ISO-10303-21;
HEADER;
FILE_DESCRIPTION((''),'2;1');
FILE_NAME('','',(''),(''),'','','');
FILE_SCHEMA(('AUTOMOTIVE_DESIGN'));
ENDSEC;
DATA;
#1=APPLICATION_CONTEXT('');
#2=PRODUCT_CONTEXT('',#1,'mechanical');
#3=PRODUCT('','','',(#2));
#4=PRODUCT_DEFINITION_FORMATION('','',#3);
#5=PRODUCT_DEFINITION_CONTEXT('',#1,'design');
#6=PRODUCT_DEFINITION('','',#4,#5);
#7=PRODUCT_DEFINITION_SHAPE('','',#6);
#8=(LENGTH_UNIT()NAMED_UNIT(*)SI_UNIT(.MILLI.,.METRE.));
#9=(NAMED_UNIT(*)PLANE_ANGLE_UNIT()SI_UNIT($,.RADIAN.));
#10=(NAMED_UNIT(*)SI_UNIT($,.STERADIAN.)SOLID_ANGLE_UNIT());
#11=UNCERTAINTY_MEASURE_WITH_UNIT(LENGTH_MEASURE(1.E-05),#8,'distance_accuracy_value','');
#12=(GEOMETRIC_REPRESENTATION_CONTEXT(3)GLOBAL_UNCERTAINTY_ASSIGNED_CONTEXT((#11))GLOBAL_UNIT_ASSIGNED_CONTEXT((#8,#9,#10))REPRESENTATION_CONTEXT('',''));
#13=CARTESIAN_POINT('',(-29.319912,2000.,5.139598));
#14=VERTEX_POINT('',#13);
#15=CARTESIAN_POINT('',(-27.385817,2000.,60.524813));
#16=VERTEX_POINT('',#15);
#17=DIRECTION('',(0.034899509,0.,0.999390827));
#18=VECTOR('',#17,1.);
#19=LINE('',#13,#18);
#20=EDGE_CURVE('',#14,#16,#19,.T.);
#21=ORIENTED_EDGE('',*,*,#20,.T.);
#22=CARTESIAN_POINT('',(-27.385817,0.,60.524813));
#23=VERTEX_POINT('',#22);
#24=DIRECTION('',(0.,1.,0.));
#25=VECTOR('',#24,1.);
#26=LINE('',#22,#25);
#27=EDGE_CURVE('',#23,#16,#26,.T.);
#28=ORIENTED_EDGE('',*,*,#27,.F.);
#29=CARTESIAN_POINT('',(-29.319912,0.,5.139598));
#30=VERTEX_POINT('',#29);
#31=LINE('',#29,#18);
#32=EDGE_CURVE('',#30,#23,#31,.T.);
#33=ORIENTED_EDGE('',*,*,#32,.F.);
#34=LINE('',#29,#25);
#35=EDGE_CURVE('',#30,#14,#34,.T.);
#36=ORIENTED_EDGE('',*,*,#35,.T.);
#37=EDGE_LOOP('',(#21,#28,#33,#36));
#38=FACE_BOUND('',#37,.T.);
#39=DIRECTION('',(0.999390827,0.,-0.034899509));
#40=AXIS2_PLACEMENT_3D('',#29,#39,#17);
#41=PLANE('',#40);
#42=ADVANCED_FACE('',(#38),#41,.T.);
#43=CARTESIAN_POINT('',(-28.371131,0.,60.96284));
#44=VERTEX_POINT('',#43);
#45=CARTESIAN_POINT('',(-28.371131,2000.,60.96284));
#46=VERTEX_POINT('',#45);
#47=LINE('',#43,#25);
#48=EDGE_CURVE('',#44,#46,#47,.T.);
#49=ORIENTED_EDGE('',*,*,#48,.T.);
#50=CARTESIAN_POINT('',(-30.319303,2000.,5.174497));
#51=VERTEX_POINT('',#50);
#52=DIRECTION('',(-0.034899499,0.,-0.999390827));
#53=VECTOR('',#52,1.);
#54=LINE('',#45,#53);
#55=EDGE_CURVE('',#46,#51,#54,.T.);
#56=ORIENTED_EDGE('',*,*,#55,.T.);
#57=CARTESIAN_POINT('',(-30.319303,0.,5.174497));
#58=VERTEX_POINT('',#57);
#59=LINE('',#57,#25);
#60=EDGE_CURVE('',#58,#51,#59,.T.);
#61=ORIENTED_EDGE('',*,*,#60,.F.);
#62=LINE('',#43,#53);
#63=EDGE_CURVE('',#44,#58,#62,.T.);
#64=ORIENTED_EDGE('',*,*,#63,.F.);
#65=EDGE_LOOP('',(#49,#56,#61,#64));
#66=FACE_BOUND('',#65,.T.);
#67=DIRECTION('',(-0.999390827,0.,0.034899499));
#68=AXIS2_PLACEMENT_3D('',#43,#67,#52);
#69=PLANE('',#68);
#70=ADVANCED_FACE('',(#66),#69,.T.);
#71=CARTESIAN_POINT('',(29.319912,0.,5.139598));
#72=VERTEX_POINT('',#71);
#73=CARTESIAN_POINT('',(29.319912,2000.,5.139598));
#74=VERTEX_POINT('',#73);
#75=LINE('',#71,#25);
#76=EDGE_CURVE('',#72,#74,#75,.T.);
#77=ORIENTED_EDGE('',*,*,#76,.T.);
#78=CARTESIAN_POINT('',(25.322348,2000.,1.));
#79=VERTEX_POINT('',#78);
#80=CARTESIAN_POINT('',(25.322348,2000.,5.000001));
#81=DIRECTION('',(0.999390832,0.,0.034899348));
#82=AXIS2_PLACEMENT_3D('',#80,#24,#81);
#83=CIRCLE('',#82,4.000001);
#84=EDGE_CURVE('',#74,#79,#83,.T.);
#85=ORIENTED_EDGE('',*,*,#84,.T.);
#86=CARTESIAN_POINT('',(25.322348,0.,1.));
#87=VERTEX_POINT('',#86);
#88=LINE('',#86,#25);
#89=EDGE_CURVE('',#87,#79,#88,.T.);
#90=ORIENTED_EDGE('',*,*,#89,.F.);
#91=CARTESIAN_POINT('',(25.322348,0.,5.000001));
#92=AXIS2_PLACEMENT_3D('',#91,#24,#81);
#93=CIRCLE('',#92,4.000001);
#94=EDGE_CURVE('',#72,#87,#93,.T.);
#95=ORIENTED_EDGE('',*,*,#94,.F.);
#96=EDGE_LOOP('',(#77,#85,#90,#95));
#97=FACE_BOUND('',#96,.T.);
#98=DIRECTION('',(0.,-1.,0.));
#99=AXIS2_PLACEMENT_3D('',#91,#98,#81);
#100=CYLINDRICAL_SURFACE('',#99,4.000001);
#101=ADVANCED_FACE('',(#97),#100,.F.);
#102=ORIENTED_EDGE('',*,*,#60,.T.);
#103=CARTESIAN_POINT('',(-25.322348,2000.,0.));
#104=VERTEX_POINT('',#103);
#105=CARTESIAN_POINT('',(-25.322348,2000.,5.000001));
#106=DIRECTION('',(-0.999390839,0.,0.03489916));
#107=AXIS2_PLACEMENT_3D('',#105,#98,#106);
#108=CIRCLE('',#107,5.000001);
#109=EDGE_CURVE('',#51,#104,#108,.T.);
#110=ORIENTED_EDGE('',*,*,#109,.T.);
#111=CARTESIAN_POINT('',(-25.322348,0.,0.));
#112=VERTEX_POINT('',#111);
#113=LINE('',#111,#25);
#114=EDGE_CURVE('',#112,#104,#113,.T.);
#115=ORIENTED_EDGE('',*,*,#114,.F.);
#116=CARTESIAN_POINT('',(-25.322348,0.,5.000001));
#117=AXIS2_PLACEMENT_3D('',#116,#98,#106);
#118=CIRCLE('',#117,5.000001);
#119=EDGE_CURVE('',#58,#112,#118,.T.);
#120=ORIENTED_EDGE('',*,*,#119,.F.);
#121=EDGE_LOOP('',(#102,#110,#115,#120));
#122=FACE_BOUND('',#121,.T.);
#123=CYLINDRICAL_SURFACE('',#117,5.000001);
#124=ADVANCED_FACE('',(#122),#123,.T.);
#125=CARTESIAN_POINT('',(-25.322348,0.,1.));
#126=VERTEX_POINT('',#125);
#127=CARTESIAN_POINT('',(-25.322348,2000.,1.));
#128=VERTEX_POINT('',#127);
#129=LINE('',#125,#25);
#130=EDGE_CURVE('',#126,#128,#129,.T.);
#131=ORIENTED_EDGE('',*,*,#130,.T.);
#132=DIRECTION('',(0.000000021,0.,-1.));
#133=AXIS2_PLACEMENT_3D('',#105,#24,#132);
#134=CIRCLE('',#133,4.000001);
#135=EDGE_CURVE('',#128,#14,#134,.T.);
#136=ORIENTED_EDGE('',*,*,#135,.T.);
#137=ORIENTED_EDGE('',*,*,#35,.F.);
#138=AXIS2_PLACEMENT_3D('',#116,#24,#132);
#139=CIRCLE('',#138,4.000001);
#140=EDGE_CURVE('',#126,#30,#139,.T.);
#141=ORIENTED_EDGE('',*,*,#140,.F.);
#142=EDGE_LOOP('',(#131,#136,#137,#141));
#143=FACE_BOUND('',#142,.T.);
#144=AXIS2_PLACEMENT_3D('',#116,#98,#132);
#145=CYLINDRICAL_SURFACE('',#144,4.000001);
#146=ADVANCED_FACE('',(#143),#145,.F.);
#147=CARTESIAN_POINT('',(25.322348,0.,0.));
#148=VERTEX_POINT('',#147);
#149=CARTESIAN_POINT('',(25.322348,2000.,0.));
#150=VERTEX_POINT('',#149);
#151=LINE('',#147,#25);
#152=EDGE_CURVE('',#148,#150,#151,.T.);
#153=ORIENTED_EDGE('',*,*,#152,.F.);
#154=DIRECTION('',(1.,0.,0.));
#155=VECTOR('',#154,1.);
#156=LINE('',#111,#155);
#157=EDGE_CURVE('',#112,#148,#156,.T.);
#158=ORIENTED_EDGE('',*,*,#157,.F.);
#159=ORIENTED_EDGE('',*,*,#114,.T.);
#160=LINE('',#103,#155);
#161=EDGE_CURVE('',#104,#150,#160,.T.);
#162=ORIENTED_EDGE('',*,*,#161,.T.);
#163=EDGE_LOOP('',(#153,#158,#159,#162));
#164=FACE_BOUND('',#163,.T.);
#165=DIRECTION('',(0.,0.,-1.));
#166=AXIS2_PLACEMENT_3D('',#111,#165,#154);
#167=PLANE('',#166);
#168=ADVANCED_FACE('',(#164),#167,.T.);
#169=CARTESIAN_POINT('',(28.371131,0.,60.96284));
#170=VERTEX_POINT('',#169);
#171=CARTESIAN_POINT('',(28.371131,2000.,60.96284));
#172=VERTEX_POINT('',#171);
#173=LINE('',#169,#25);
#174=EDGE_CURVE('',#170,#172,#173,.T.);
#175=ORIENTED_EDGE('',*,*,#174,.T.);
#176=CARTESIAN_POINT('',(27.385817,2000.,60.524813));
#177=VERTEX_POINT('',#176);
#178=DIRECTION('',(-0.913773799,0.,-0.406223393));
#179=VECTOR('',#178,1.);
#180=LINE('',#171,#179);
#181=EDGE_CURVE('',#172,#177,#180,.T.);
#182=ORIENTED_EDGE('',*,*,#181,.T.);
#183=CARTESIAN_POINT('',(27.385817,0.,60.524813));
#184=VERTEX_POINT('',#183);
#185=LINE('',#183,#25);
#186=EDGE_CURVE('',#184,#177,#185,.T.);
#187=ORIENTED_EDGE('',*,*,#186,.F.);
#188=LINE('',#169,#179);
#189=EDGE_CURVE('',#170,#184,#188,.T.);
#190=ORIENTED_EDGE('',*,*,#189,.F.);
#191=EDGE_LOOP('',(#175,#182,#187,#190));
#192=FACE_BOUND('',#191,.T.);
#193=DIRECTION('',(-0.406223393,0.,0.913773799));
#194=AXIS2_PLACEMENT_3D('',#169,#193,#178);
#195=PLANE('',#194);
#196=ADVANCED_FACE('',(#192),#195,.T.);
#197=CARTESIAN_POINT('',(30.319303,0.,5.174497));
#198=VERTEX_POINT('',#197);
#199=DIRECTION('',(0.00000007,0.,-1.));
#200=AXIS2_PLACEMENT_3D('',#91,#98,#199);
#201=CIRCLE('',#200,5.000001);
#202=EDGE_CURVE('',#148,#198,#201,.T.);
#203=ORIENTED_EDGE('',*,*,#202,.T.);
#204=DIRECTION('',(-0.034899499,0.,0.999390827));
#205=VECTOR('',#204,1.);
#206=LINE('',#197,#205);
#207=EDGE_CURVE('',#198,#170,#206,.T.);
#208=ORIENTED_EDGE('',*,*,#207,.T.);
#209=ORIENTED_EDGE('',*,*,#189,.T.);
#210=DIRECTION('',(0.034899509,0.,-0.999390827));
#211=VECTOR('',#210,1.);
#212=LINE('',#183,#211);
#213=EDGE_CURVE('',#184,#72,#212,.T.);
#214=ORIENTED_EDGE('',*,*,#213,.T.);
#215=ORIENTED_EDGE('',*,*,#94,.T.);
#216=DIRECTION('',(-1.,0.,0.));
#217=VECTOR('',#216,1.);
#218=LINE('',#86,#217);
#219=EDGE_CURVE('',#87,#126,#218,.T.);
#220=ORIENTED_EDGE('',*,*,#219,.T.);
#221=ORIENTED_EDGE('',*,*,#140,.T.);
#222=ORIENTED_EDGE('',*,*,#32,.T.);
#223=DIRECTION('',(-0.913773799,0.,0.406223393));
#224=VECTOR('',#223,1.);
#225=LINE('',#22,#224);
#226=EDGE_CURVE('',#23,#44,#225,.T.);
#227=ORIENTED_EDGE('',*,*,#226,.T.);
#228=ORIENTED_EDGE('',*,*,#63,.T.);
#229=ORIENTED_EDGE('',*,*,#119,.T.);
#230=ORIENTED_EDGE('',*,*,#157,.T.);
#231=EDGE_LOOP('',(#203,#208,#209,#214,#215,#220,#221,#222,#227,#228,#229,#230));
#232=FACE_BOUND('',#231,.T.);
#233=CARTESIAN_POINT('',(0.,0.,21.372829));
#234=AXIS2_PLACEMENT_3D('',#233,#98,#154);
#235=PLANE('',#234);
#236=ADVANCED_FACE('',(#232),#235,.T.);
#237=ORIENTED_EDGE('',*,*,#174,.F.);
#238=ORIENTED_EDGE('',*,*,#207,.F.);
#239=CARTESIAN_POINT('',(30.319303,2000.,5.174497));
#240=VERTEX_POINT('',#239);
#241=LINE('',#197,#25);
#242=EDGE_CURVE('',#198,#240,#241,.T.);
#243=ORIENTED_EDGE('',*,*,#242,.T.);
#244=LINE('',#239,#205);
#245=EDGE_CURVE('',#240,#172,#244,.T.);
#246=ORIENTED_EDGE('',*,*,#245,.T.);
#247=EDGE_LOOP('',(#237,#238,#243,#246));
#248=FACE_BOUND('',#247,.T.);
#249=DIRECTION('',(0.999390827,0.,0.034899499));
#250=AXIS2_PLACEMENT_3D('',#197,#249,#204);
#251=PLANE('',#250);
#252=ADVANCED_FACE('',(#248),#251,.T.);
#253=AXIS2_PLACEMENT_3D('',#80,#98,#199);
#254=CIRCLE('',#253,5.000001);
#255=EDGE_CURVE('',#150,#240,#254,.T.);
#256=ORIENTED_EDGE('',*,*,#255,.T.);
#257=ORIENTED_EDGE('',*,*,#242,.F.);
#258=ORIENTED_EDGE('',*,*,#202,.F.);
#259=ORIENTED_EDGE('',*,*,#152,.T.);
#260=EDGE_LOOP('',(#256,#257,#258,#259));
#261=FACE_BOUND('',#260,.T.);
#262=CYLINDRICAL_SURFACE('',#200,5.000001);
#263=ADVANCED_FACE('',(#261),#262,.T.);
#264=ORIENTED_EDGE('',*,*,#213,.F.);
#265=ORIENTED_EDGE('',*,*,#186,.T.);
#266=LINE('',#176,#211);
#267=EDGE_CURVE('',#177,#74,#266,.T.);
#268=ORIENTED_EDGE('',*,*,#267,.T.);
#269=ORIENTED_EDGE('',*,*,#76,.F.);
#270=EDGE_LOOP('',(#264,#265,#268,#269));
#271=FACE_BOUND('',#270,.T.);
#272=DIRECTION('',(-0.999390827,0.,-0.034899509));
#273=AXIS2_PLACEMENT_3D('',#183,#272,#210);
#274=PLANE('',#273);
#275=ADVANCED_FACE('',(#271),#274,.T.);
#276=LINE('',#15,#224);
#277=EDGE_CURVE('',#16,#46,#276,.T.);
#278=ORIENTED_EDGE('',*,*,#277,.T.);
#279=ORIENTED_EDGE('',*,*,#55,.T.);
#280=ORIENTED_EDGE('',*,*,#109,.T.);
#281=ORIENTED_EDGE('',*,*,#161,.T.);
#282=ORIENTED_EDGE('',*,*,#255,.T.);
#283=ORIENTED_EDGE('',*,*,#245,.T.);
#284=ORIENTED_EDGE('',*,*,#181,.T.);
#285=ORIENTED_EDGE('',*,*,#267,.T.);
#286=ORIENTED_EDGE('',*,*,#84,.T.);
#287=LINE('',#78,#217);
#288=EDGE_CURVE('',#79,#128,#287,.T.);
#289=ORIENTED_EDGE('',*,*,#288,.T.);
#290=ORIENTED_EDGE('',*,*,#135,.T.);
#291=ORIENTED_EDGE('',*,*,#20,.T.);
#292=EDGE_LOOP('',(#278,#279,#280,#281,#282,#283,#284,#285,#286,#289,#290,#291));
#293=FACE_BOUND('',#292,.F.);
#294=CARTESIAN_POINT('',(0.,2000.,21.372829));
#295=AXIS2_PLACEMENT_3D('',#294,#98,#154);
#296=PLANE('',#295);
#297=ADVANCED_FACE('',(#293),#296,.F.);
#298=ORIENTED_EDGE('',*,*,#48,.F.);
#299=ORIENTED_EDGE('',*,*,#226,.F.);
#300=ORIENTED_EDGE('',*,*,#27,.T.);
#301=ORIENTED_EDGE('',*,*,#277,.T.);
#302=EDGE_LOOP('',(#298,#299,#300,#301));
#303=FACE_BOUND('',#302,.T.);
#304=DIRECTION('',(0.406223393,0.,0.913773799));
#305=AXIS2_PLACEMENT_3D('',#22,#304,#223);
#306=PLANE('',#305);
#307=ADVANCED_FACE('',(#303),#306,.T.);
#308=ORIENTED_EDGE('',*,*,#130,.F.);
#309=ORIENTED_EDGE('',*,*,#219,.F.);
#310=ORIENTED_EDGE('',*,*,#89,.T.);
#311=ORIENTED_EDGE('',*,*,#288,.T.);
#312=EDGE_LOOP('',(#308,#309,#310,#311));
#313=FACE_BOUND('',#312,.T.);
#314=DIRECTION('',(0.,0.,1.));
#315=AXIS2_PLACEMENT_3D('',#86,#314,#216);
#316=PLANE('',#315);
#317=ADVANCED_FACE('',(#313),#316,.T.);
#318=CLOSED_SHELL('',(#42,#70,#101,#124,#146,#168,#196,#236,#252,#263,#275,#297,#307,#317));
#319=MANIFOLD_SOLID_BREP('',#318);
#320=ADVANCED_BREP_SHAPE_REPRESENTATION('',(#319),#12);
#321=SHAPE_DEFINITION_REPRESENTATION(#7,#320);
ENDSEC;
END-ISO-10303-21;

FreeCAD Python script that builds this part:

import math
import FreeCAD as App
import Part
import Sketcher
Q = App.Units.Quantity

doc = App.newDocument("Part")
body = doc.addObject("PartDesign::Body", "Body")

# Sketch on XZ plane
sketch1 = body.newObject("Sketcher::SketchObject", "Sketch")
sketch1.AttachmentSupport = (doc.getObject("XZ_Plane"), [""])
sketch1.MapMode = "FlatFace"
sketch1.addGeometry([
    Part.LineSegment(App.Vector(-25.3, 0, 0), App.Vector(25.3, 0, 0)),  # 0
    Part.ArcOfCircle(Part.Circle(App.Vector(25.3, 5, 0), App.Vector(0, 0, 1), 5), math.radians(-90), math.radians(2)),  # 1
    Part.LineSegment(App.Vector(30.3, 5.2, 0), App.Vector(28.4, 61, 0)),  # 2
    Part.LineSegment(App.Vector(28.4, 61, 0), App.Vector(27.4, 60.5, 0)),  # 3
    Part.LineSegment(App.Vector(27.4, 60.5, 0), App.Vector(29.3, 5.1, 0)),  # 4
    Part.ArcOfCircle(Part.Circle(App.Vector(25.3, 5, 0), App.Vector(0, 0, 1), 4), math.radians(-90), math.radians(2)),  # 5
    Part.LineSegment(App.Vector(25.3, 1, 0), App.Vector(-25.3, 1, 0)),  # 6
    Part.ArcOfCircle(Part.Circle(App.Vector(-25.3, 5, 0), App.Vector(0, 0, 1), 4), math.radians(178), math.radians(270)),  # 7
    Part.LineSegment(App.Vector(-29.3, 5.1, 0), App.Vector(-27.4, 60.5, 0)),  # 8
    Part.LineSegment(App.Vector(-27.4, 60.5, 0), App.Vector(-28.4, 61, 0)),  # 9
    Part.LineSegment(App.Vector(-28.4, 61, 0), App.Vector(-30.3, 5.2, 0)),  # 10
    Part.ArcOfCircle(Part.Circle(App.Vector(-25.3, 5, 0), App.Vector(0, 0, 1), 5), math.radians(178), math.radians(270)),  # 11
], False)
sketch1.addConstraint([
    Sketcher.Constraint("Tangent", 0, 2, 1, 1),
    Sketcher.Constraint("Tangent", 1, 2, 2, 1),
    Sketcher.Constraint("Coincident", 2, 2, 3, 1),
    Sketcher.Constraint("Coincident", 3, 2, 4, 1),
    Sketcher.Constraint("Tangent", 4, 2, 5, 2),
    Sketcher.Constraint("Tangent", 5, 1, 6, 1),
    Sketcher.Constraint("Tangent", 6, 2, 7, 2),
    Sketcher.Constraint("Tangent", 7, 1, 8, 1),
    Sketcher.Constraint("Coincident", 8, 2, 9, 1),
    Sketcher.Constraint("Coincident", 9, 2, 10, 1),
    Sketcher.Constraint("Tangent", 10, 2, 11, 1),
    Sketcher.Constraint("Tangent", 11, 2, 0, 1),
    Sketcher.Constraint("Horizontal", 0),
    Sketcher.Constraint("Horizontal", 6),
    Sketcher.Constraint("Coincident", 5, 3, 1, 3),
    Sketcher.Constraint("Coincident", 11, 3, 7, 3),
    Sketcher.Constraint("Equal", 5, 7),
    Sketcher.Constraint("Symmetric", 0, 2, 11, 2, -1, 1),
    Sketcher.Constraint("Symmetric", 3, 2, 8, 2, -2),
    Sketcher.Constraint("Symmetric", 2, 2, 9, 2, -2),
    Sketcher.Constraint("Parallel", 2, 4),
    Sketcher.Constraint("Radius", 1, Q("5.000001 mm")),
    Sketcher.Constraint("Radius", 5, Q("4.000001 mm")),
    Sketcher.Constraint("Angle", 2, Q("92 deg")),
    Sketcher.Constraint("Distance", 2, Q("55.822348 mm")),
    Sketcher.Constraint("Distance", 3, Q("1.078291 mm")),
    Sketcher.Constraint("DistanceX", 0, 1, 0, 2, Q("50.644696 mm")),
])
pad1 = body.newObject("PartDesign::Pad", "Pad")
pad1.Profile = sketch1
pad1.Length = 2000
pad1.Reversed = True

doc.recompute()
